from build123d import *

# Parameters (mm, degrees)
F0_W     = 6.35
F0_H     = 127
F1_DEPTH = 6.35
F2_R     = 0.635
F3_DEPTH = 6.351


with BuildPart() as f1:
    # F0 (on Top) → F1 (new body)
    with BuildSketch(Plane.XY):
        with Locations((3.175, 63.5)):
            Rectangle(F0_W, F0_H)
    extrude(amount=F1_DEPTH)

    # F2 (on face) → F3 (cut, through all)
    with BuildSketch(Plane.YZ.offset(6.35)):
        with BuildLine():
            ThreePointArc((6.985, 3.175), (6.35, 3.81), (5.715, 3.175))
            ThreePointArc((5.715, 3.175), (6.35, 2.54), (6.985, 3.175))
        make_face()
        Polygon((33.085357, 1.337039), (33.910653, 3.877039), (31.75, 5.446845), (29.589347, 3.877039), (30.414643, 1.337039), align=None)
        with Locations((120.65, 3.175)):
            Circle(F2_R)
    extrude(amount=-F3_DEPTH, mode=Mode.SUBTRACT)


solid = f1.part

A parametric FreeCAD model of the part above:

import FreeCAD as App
import Part
import Sketcher
from FreeCAD import Vector
Q = App.Units.Quantity


def add_polygon(sketch, points):
    """Adds a closed chain of lines whose ends are joined by coincident constraints."""
    first, n = sketch.GeometryCount, len(points)
    for a, b in zip(points, points[1:] + points[:1]):
        sketch.addGeometry(Part.LineSegment(App.Vector(*a, 0), App.Vector(*b, 0)), False)
    for i in range(n):
        sketch.addConstraint(Sketcher.Constraint("Coincident", first + i, 2, first + (i + 1) % n, 1))

doc = App.newDocument("Part")
params = doc.addObject("Spreadsheet::Sheet", "Params")
for row, (alias, value) in enumerate([
    ("sketch1_height", "5 in"),
    ("sketch1_width", "0.25 in"),
    ("pad1_length", "0.25 in"),
    ("sketch2_diameter", "0.05 in"),
], start=1):
    params.set(f"A{row}", alias)
    params.set(f"B{row}", "=" + value)
    params.setAlias(f"B{row}", alias)

body = doc.addObject("PartDesign::Body", "Body")

sketch1 = doc.addObject("Sketcher::SketchObject", "Sketch")
body.addObject(sketch1)
sketch1.AttachmentSupport = (doc.XY_Plane, [""])
sketch1.MapMode = "FlatFace"
add_polygon(sketch1, [(0, 127), (0, 0), (6.35, 0), (6.35, 127)])
sketch1.addConstraint(Sketcher.Constraint("Vertical", 0))
sketch1.addConstraint(Sketcher.Constraint("Horizontal", 1))
sketch1.addConstraint(Sketcher.Constraint("Vertical", 2))
sketch1.addConstraint(Sketcher.Constraint("Horizontal", 3))
sketch1.addConstraint(Sketcher.Constraint("Coincident", 0, 2, -1, 1))
sketch1.addConstraint(Sketcher.Constraint("DistanceY", 0, 2, 0, 1, Q("5 in")))
sketch1.addConstraint(Sketcher.Constraint("DistanceX", 1, 1, 1, 2, Q("0.25 in")))
sketch1.setExpression("Constraints[9]", "Params.sketch1_height")
sketch1.setExpression("Constraints[10]", "Params.sketch1_width")
pad1 = doc.addObject("PartDesign::Pad", "Pad")
body.addObject(pad1)
pad1.Profile = sketch1
pad1.setExpression("Length", "Params.pad1_length")

sketch2 = doc.addObject("Sketcher::SketchObject", "Sketch001")
body.addObject(sketch2)
sketch2.AttachmentSupport = (doc.YZ_Plane, [""])
sketch2.MapMode = "FlatFace"
sketch2.AttachmentOffset = App.Placement(Vector(0, 0, 0.25 * 25.4), App.Rotation())
sketch2.addGeometry(Part.Circle(Vector(6.35, 3.175, 0), Vector(0, 0, 1), 0.635), False)
add_polygon(sketch2, [(33.085357, 1.337039), (33.910653, 3.877039), (31.75, 5.446845), (29.589347, 3.877039), (30.414643, 1.337039)])
sketch2.addGeometry(Part.Circle(Vector(120.65, 3.175, 0), Vector(0, 0, 1), 0.635), False)
sketch2.addConstraint(Sketcher.Constraint("Horizontal", 5))
sketch2.addConstraint(Sketcher.Constraint("Equal", 0, 6))
sketch2.addConstraint(Sketcher.Constraint("Horizontal", 0, 3, 6, 3))
sketch2.addConstraint(Sketcher.Constraint("Horizontal", 1, 2, 3, 2))
sketch2.addConstraint(Sketcher.Constraint("Equal", 1, 2))
sketch2.addConstraint(Sketcher.Constraint("Equal", 2, 3))
sketch2.addConstraint(Sketcher.Constraint("Equal", 3, 4))
sketch2.addConstraint(Sketcher.Constraint("Diameter", 0, Q("0.05 in")))
sketch2.addConstraint(Sketcher.Constraint("Angle", 1, Q("72.000001 deg")))
sketch2.addConstraint(Sketcher.Constraint("Angle", 2, Q("144.000005 deg")))
sketch2.addConstraint(Sketcher.Constraint("DistanceX", 0, 3, 2, 2, Q("1 in")))
sketch2.addConstraint(Sketcher.Constraint("DistanceX", 0, 3, 6, 3, Q("4.5 in")))
sketch2.addConstraint(Sketcher.Constraint("DistanceY", 4, 2, 3, 2, Q("0.1 in")))
sketch2.addConstraint(Sketcher.Constraint("DistanceX", -1, 1, 0, 3, Q("0.25 in")))
sketch2.addConstraint(Sketcher.Constraint("DistanceY", -1, 1, 0, 3, Q("0.125 in")))
sketch2.addConstraint(Sketcher.Constraint("DistanceY", -1, 1, 1, 2, 3.877039))
sketch2.setExpression("Constraints[12]", "Params.sketch2_diameter")
pocket1 = doc.addObject("PartDesign::Pocket", "Pocket")
body.addObject(pocket1)
pocket1.Profile = sketch2
pocket1.Type = "ThroughAll"

doc.recompute()
